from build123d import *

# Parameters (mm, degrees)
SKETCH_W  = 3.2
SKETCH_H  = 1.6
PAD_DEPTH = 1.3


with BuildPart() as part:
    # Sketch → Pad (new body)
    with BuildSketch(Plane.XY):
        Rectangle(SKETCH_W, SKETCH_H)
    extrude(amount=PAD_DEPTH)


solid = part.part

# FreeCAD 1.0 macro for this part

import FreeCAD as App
import Part
import Sketcher
from FreeCAD import Vector


def add_polygon(sketch, points):
    """Adds a closed chain of lines whose ends are joined by coincident constraints."""
    first, n = sketch.GeometryCount, len(points)
    for a, b in zip(points, points[1:] + points[:1]):
        sketch.addGeometry(Part.LineSegment(App.Vector(*a, 0), App.Vector(*b, 0)), False)
    for i in range(n):
        sketch.addConstraint(Sketcher.Constraint("Coincident", first + i, 2, first + (i + 1) % n, 1))

doc = App.newDocument("Part")
body = doc.addObject("PartDesign::Body", "Body")

# Sketch on XY plane
sketch1 = doc.addObject("Sketcher::SketchObject", "Sketch")
body.addObject(sketch1)
sketch1.AttachmentSupport = (doc.XY_Plane, [""])
sketch1.MapMode = "FlatFace"
add_polygon(sketch1, [(-1.6, 0.8), (-1.6, -0.8), (1.6, -0.8), (1.6, 0.8)])  # lines 0-3
sketch1.addConstraint([
    Sketcher.Constraint("Vertical", 0),
    Sketcher.Constraint("Horizontal", 1),
    Sketcher.Constraint("Vertical", 2),
    Sketcher.Constraint("Horizontal", 3),
    Sketcher.Constraint("Symmetric", 0, 2, 2, 2, -1, 1),
    Sketcher.Constraint("DistanceX", 1, 1, 1, 2, 3.2),
    Sketcher.Constraint("DistanceY", 0, 2, 0, 1, 1.6),
])
pad1 = doc.addObject("PartDesign::Pad", "Pad")
body.addObject(pad1)
pad1.Profile = sketch1
pad1.Length = 1.3

doc.recompute()
